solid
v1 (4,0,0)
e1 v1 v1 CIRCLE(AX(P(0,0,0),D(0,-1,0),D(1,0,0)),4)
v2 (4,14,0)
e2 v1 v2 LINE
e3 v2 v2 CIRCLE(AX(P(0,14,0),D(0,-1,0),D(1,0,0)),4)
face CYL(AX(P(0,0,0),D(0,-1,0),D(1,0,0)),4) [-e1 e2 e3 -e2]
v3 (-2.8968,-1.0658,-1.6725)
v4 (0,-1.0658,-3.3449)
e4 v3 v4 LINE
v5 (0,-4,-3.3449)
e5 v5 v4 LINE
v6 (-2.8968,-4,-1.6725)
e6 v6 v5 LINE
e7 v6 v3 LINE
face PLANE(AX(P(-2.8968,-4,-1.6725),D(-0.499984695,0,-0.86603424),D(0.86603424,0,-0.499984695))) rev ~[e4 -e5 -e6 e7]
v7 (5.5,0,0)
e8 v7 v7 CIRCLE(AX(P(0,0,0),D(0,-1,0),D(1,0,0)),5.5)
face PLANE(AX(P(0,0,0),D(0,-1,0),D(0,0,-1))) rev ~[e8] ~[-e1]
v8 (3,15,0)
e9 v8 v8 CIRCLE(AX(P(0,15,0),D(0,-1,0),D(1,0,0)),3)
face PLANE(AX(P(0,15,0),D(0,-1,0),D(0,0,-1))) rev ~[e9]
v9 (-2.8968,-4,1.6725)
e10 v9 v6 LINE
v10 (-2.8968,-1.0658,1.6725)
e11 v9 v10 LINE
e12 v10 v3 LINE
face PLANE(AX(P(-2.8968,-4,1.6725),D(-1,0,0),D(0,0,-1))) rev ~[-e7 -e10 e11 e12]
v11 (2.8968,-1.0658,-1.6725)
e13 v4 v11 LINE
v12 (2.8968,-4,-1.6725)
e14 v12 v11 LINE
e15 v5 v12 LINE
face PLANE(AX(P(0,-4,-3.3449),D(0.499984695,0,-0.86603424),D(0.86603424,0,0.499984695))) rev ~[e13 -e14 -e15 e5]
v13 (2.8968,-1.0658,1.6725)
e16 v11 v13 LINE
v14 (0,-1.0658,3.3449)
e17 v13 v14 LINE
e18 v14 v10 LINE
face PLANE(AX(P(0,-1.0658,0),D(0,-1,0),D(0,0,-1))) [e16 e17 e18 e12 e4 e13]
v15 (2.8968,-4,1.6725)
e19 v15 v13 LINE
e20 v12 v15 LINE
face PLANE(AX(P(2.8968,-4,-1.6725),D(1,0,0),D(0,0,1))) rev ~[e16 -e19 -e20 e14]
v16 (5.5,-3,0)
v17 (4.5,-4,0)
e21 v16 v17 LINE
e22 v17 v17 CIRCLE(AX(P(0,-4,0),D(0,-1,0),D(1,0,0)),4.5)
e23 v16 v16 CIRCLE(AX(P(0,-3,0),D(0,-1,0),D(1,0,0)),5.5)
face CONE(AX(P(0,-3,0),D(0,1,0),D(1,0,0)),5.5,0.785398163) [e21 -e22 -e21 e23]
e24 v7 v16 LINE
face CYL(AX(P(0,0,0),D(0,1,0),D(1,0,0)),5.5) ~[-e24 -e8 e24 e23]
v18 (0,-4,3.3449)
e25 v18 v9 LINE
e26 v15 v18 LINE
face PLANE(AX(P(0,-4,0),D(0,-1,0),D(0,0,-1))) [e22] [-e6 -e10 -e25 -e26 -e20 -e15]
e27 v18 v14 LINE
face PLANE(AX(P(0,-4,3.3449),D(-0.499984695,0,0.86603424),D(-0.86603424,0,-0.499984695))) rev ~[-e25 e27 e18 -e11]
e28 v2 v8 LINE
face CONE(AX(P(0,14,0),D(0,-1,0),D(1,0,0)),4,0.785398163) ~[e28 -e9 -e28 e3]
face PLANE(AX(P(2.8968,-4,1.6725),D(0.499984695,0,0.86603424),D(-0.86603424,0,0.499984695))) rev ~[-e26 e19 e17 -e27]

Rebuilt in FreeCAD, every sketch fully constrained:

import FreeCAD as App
import Part
import Sketcher

V = App.Vector
Q = App.Units.Quantity


def edges_at(feature, points):
    """Names of the edges that pass closest to the given points."""
    edges = feature.Shape.Edges
    near = lambda p: min(range(len(edges)), key=lambda i: edges[i].distToShape(Part.Vertex(*p))[0])
    return sorted({f"Edge{near(p) + 1}" for p in points})


def add_polygon(sketch, points):
    """Adds a closed chain of lines whose ends are joined by coincident constraints."""
    first, n = sketch.GeometryCount, len(points)
    for a, b in zip(points, points[1:] + points[:1]):
        sketch.addGeometry(Part.LineSegment(App.Vector(*a, 0), App.Vector(*b, 0)), False)
    for i in range(n):
        sketch.addConstraint(Sketcher.Constraint("Coincident", first + i, 2, first + (i + 1) % n, 1))

doc = App.newDocument("Part")
body = doc.addObject("PartDesign::Body", "Body")

sketch1 = body.newObject("Sketcher::SketchObject", "Sketch")
sketch1.AttachmentSupport = (doc.getObject("XZ_Plane"), [""])
sketch1.MapMode = "FlatFace"
sketch1.addGeometry(Part.Circle(V(0, 0, 0), V(0, 0, 1), 4), False)
sketch1.addConstraint(Sketcher.Constraint("Coincident", 0, 3, -1, 1))
sketch1.addConstraint(Sketcher.Constraint("Diameter", 0, 8.0))
pad1 = body.newObject("PartDesign::Pad", "Pad")
pad1.Profile = sketch1
pad1.Length = 15
pad1.Reversed = True

sketch2 = body.newObject("Sketcher::SketchObject", "Sketch001")
sketch2.AttachmentSupport = (doc.getObject("XZ_Plane"), [""])
sketch2.MapMode = "FlatFace"
sketch2.addGeometry(Part.Circle(V(0, 0, 0), V(0, 0, 1), 6), False)
sketch2.addConstraint(Sketcher.Constraint("Coincident", 0, 3, -1, 1))
sketch2.addConstraint(Sketcher.Constraint("Diameter", 0, 11.0))
pad2 = body.newObject("PartDesign::Pad", "Pad001")
pad2.Profile = sketch2
pad2.Length = 4
doc.recompute()

chamfer = body.newObject("PartDesign::Chamfer", "Chamfer")
chamfer.Base = (pad2, edges_at(pad2, [(-5.5, -4, 0)]))
chamfer.Size = 1

sketch3 = body.newObject("Sketcher::SketchObject", "Sketch002")
sketch3.AttachmentSupport = (doc.getObject("XZ_Plane"), [""])
sketch3.MapMode = "FlatFace"
sketch3.AttachmentOffset = App.Placement(V(0, 0, 4), App.Rotation())
add_polygon(sketch3, [(2.9, -1.7), (2.9, 1.7), (0, 3.3), (-2.9, 1.7), (-2.9, -1.7), (0, -3.3)])
sketch3.addConstraint(Sketcher.Constraint("Vertical", 0))
sketch3.addConstraint(Sketcher.Constraint("Vertical", 3))
sketch3.addConstraint(Sketcher.Constraint("Symmetric", 0, 2, 3, 2, -1, 1))
sketch3.addConstraint(Sketcher.Constraint("Symmetric", 1, 2, 4, 2, -1, 1))
sketch3.addConstraint(Sketcher.Constraint("PointOnObject", 1, 2, -2))
sketch3.addConstraint(Sketcher.Constraint("Parallel", 2, 5))
sketch3.addConstraint(Sketcher.Constraint("Horizontal", 0, 2, 2, 2))
sketch3.addConstraint(Sketcher.Constraint("Angle", 1, Q("150.001 deg")))
sketch3.addConstraint(Sketcher.Constraint("DistanceY", 0, 1, 0, 2, 3.345))
sketch3.addConstraint(Sketcher.Constraint("Distance", 1, 3.345))
pocket1 = body.newObject("PartDesign::Pocket", "Pocket")
pocket1.Profile = sketch3
pocket1.Length = 2.9342
doc.recompute()

chamfer2 = body.newObject("PartDesign::Chamfer", "Chamfer001")
chamfer2.Base = (pocket1, edges_at(pocket1, [(-4, 15, 0)]))
chamfer2.Size = 1

doc.recompute()
